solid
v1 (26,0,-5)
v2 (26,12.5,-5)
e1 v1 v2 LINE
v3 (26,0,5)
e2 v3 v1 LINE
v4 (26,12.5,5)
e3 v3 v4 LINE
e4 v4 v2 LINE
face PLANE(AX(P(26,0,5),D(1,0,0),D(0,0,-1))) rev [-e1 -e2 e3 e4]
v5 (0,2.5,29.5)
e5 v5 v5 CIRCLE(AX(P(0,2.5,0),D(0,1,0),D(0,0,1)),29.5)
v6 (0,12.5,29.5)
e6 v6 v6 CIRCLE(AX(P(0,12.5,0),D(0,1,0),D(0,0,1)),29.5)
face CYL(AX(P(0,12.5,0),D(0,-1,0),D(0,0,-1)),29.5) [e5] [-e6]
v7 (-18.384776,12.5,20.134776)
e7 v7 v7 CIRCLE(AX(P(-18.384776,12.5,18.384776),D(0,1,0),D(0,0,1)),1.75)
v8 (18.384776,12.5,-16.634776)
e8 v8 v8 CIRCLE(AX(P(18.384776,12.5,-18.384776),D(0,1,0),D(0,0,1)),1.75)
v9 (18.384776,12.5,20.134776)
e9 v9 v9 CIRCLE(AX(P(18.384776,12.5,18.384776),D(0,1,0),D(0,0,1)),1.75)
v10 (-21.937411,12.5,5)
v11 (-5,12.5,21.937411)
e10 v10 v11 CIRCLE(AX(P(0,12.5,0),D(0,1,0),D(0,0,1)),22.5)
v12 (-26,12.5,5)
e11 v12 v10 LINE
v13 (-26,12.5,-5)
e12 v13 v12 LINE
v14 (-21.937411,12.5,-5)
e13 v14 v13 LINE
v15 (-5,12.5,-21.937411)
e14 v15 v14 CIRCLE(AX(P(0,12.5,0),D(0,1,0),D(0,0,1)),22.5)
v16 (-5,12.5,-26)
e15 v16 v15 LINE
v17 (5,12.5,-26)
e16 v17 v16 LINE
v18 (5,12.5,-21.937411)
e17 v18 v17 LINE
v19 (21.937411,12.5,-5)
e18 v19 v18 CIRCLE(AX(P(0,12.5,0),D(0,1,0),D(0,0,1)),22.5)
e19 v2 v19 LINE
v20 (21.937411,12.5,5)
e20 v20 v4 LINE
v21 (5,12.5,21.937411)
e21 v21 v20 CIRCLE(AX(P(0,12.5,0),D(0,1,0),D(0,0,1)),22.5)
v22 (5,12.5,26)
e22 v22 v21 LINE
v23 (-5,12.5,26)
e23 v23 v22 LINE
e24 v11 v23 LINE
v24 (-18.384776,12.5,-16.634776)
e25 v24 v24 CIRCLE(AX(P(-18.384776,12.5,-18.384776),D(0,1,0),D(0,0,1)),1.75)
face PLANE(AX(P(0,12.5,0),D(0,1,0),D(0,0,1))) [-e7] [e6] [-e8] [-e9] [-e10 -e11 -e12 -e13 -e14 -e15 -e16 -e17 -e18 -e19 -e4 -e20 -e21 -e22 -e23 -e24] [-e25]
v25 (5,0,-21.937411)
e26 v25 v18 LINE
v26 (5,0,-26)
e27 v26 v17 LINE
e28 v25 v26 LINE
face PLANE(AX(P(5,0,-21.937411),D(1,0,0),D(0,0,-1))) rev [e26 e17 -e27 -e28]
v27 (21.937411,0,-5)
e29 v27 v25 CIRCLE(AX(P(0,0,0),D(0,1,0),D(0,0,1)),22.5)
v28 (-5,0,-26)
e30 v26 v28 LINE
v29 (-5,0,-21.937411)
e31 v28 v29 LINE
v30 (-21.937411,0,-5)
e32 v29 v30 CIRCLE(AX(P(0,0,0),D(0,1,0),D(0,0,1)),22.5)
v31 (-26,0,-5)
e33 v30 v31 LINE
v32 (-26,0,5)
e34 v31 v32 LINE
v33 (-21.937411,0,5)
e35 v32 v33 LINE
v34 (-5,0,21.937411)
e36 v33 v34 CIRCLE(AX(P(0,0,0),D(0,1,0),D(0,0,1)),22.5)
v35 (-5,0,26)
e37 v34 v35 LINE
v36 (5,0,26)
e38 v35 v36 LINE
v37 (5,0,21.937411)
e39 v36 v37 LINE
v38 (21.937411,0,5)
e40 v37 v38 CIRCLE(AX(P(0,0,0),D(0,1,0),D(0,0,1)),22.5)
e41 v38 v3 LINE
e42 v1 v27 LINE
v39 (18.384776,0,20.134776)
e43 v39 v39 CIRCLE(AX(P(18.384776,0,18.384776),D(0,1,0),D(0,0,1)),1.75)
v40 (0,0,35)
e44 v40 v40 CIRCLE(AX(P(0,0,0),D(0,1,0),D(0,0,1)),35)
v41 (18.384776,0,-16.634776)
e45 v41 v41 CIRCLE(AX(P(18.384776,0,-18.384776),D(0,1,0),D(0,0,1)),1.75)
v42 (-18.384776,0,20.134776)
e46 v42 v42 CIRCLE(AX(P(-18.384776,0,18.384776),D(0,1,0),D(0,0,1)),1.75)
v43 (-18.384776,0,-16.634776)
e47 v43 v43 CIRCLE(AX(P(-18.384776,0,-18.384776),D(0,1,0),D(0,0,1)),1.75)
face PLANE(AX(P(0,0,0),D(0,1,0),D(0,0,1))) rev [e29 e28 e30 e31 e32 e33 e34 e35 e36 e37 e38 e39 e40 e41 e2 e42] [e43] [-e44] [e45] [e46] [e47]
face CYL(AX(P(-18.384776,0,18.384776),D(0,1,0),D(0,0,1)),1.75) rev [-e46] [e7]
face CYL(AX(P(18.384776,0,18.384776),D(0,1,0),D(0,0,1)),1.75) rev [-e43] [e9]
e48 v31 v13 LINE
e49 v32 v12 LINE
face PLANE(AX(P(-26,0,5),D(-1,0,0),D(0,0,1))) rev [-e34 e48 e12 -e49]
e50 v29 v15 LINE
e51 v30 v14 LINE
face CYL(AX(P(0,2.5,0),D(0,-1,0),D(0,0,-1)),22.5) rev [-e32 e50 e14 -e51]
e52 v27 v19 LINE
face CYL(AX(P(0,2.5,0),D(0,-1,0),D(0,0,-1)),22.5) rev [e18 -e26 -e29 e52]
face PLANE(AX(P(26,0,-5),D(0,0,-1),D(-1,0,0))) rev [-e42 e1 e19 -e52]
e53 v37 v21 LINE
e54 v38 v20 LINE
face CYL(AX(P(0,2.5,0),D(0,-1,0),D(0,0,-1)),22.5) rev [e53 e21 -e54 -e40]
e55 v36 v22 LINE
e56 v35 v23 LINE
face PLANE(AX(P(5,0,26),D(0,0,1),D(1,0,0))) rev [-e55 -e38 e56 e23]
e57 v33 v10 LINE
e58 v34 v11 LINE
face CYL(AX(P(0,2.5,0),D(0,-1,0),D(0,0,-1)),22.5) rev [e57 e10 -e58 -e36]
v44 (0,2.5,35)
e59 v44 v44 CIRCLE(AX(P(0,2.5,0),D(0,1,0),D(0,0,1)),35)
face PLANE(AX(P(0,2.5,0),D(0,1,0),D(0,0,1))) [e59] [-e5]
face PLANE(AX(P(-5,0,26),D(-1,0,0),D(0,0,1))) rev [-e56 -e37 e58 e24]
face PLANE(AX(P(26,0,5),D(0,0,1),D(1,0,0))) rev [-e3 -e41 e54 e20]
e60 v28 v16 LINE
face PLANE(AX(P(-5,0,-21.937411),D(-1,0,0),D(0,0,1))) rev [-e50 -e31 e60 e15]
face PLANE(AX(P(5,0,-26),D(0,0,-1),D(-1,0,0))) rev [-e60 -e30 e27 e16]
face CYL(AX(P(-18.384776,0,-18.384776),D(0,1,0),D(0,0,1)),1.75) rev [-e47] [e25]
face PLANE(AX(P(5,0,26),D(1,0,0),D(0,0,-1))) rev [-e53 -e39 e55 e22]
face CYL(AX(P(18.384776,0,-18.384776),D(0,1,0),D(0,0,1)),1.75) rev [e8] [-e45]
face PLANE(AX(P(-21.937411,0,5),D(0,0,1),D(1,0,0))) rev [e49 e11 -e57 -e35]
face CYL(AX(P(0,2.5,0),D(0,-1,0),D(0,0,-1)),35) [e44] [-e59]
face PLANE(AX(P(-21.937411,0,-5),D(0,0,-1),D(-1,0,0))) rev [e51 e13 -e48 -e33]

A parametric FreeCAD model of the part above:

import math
import FreeCAD as App
import Part
import Sketcher
from FreeCAD import Vector
Q = App.Units.Quantity

doc = App.newDocument("Part")
body = doc.addObject("PartDesign::Body", "Body")

# Sketch on XZ plane
sketch1 = body.newObject("Sketcher::SketchObject", "Sketch")
sketch1.AttachmentSupport = (doc.getObject("XZ_Plane"), [""])
sketch1.MapMode = "FlatFace"
sketch1.addGeometry(Part.Circle(Vector(0, 0, 0), Vector(0, 0, 1), 35), False)
sketch1.addGeometry(Part.Circle(Vector(0, 0, 0), Vector(0, 0, 1), 22), False)
sketch1.addConstraint(Sketcher.Constraint("Coincident", 0, 3, -1, 1))
sketch1.addConstraint(Sketcher.Constraint("Coincident", 1, 3, -1, 1))
sketch1.addConstraint(Sketcher.Constraint("Diameter", 0, Q("70 mm")))
sketch1.addConstraint(Sketcher.Constraint("Diameter", 1, Q("45 mm")))
pad1 = body.newObject("PartDesign::Pad", "Pad")
pad1.Profile = sketch1
pad1.Length = 2.5
pad1.Reversed = True

# Sketch on XZ plane
sketch2 = body.newObject("Sketcher::SketchObject", "Sketch001")
sketch2.AttachmentSupport = (doc.getObject("XZ_Plane"), [""])
sketch2.MapMode = "FlatFace"
sketch2.AttachmentOffset = App.Placement(Vector(0, 0, -2.5), App.Rotation())
sketch2.addGeometry(Part.Circle(Vector(0, 0, 0), Vector(0, 0, 1), 30), False)
sketch2.addGeometry(Part.Circle(Vector(0, 0, 0), Vector(0, 0, 1), 22), False)
sketch2.addConstraint(Sketcher.Constraint("Coincident", 0, 3, -1, 1))
sketch2.addConstraint(Sketcher.Constraint("Coincident", 1, 3, -1, 1))
sketch2.addConstraint(Sketcher.Constraint("Diameter", 0, Q("59 mm")))
sketch2.addConstraint(Sketcher.Constraint("Diameter", 1, Q("45 mm")))
pad2 = body.newObject("PartDesign::Pad", "Pad001")
pad2.Profile = sketch2
pad2.Length = 10
pad2.Reversed = True

# Sketch on XZ plane
sketch3 = body.newObject("Sketcher::SketchObject", "Sketch002")
sketch3.AttachmentSupport = (doc.getObject("XZ_Plane"), [""])
sketch3.MapMode = "FlatFace"
sketch3.AttachmentOffset = App.Placement(Vector(0, 0, -12.5), App.Rotation())
sketch3.addGeometry(Part.LineSegment(Vector(-5, -26, 0), Vector(-5, -21.9, 0)), False)
sketch3.addGeometry(Part.ArcOfCircle(Part.Circle(Vector(0, 0, 0), Vector(0, 0, 1), 22.5), math.radians(-167), math.radians(-103)), False)
sketch3.addGeometry(Part.LineSegment(Vector(-21.9, -5, 0), Vector(-26, -5, 0)), False)
sketch3.addGeometry(Part.LineSegment(Vector(-26, -5, 0), Vector(-26, 5, 0)), False)
sketch3.addGeometry(Part.LineSegment(Vector(-26, 5, 0), Vector(-21.9, 5, 0)), False)
sketch3.addGeometry(Part.ArcOfCircle(Part.Circle(Vector(0, 0, 0), Vector(0, 0, 1), 22.5), math.radians(103), math.radians(167)), False)
sketch3.addGeometry(Part.LineSegment(Vector(-5, 21.9, 0), Vector(-5, 26, 0)), False)
sketch3.addGeometry(Part.LineSegment(Vector(-5, 26, 0), Vector(5, 26, 0)), False)
sketch3.addGeometry(Part.LineSegment(Vector(5, 26, 0), Vector(5, 21.9, 0)), False)
sketch3.addGeometry(Part.ArcOfCircle(Part.Circle(Vector(0, 0, 0), Vector(0, 0, 1), 22.5), math.radians(13), math.radians(77)), False)
sketch3.addGeometry(Part.LineSegment(Vector(21.9, 5, 0), Vector(26, 5, 0)), False)
sketch3.addGeometry(Part.LineSegment(Vector(26, 5, 0), Vector(26, -5, 0)), False)
sketch3.addGeometry(Part.LineSegment(Vector(26, -5, 0), Vector(21.9, -5, 0)), False)
sketch3.addGeometry(Part.ArcOfCircle(Part.Circle(Vector(0, 0, 0), Vector(0, 0, 1), 22.5), math.radians(-77), math.radians(-13)), False)
sketch3.addGeometry(Part.LineSegment(Vector(5, -21.9, 0), Vector(5, -26, 0)), False)
sketch3.addGeometry(Part.LineSegment(Vector(5, -26, 0), Vector(-5, -26, 0)), False)
sketch3.addConstraint(Sketcher.Constraint("Coincident", 0, 2, 1, 2))
sketch3.addConstraint(Sketcher.Constraint("Coincident", 1, 1, 2, 1))
sketch3.addConstraint(Sketcher.Constraint("Coincident", 2, 2, 3, 1))
sketch3.addConstraint(Sketcher.Constraint("Coincident", 3, 2, 4, 1))
sketch3.addConstraint(Sketcher.Constraint("Coincident", 4, 2, 5, 2))
sketch3.addConstraint(Sketcher.Constraint("Coincident", 5, 1, 6, 1))
sketch3.addConstraint(Sketcher.Constraint("Coincident", 6, 2, 7, 1))
sketch3.addConstraint(Sketcher.Constraint("Coincident", 7, 2, 8, 1))
sketch3.addConstraint(Sketcher.Constraint("Coincident", 8, 2, 9, 2))
sketch3.addConstraint(Sketcher.Constraint("Coincident", 9, 1, 10, 1))
sketch3.addConstraint(Sketcher.Constraint("Coincident", 10, 2, 11, 1))
sketch3.addConstraint(Sketcher.Constraint("Coincident", 11, 2, 12, 1))
sketch3.addConstraint(Sketcher.Constraint("Coincident", 12, 2, 13, 2))
sketch3.addConstraint(Sketcher.Constraint("Coincident", 13, 1, 14, 1))
sketch3.addConstraint(Sketcher.Constraint("Coincident", 14, 2, 15, 1))
sketch3.addConstraint(Sketcher.Constraint("Coincident", 15, 2, 0, 1))
sketch3.addConstraint(Sketcher.Constraint("Vertical", 0))
sketch3.addConstraint(Sketcher.Constraint("Horizontal", 2))
sketch3.addConstraint(Sketcher.Constraint("Vertical", 3))
sketch3.addConstraint(Sketcher.Constraint("Horizontal", 4))
sketch3.addConstraint(Sketcher.Constraint("Vertical", 6))
sketch3.addConstraint(Sketcher.Constraint("Horizontal", 7))
sketch3.addConstraint(Sketcher.Constraint("Vertical", 8))
sketch3.addConstraint(Sketcher.Constraint("Horizontal", 10))
sketch3.addConstraint(Sketcher.Constraint("Vertical", 11))
sketch3.addConstraint(Sketcher.Constraint("Horizontal", 12))
sketch3.addConstraint(Sketcher.Constraint("Vertical", 14))
sketch3.addConstraint(Sketcher.Constraint("Horizontal", 15))
sketch3.addConstraint(Sketcher.Constraint("Coincident", 1, 3, -1, 1))
sketch3.addConstraint(Sketcher.Constraint("Coincident", 5, 3, -1, 1))
sketch3.addConstraint(Sketcher.Constraint("Coincident", 9, 3, -1, 1))
sketch3.addConstraint(Sketcher.Constraint("Coincident", 13, 3, -1, 1))
sketch3.addConstraint(Sketcher.Constraint("Equal", 1, 5))
sketch3.addConstraint(Sketcher.Constraint("Equal", 5, 9))
sketch3.addConstraint(Sketcher.Constraint("Equal", 9, 13))
sketch3.addConstraint(Sketcher.Constraint("Symmetric", 2, 2, 10, 2, -1, 1))
sketch3.addConstraint(Sketcher.Constraint("Symmetric", 6, 2, 14, 2, -1, 1))
sketch3.addConstraint(Sketcher.Constraint("Horizontal", 5, 1, 8, 2))
sketch3.addConstraint(Sketcher.Constraint("Horizontal", 4, 2, 9, 1))
sketch3.addConstraint(Sketcher.Constraint("Horizontal", 2, 2, 11, 2))
sketch3.addConstraint(Sketcher.Constraint("Horizontal", 0, 2, 13, 1))
sketch3.addConstraint(Sketcher.Constraint("Equal", 12, 0))
sketch3.addConstraint(Sketcher.Constraint("Equal", 15, 3))
sketch3.addConstraint(Sketcher.Constraint("Radius", 1, Q("22.5 mm")))
sketch3.addConstraint(Sketcher.Constraint("DistanceX", 7, 1, 7, 2, Q("10 mm")))
sketch3.addConstraint(Sketcher.Constraint("DistanceX", 2, 2, -1, 1, Q("26 mm")))
pocket1 = body.newObject("PartDesign::Pocket", "Pocket")
pocket1.Profile = sketch3
pocket1.Type = "ThroughAll"
pocket1.Reversed = True

# Sketch on XZ plane
sketch4 = body.newObject("Sketcher::SketchObject", "Sketch003")
sketch4.AttachmentSupport = (doc.getObject("XZ_Plane"), [""])
sketch4.MapMode = "FlatFace"
sketch4.AttachmentOffset = App.Placement(Vector(0, 0, -12.5), App.Rotation())
sketch4.addGeometry(Part.Circle(Vector(-18.4, 18.4, 0), Vector(0, 0, 1), 1.8), False)
sketch4.addGeometry(Part.Circle(Vector(-18.4, -18.4, 0), Vector(0, 0, 1), 1.8), False)
sketch4.addGeometry(Part.Circle(Vector(18.4, -18.4, 0), Vector(0, 0, 1), 1.8), False)
sketch4.addGeometry(Part.Circle(Vector(18.4, 18.4, 0), Vector(0, 0, 1), 1.8), False)
sketch4.addConstraint(Sketcher.Constraint("Equal", 0, 1))
sketch4.addConstraint(Sketcher.Constraint("Equal", 1, 2))
sketch4.addConstraint(Sketcher.Constraint("Equal", 2, 3))
sketch4.addConstraint(Sketcher.Constraint("Symmetric", 0, 3, 2, 3, -1, 1))
sketch4.addConstraint(Sketcher.Constraint("Symmetric", 1, 3, 3, 3, -1, 1))
sketch4.addConstraint(Sketcher.Constraint("Symmetric", 1, 3, 2, 3, -2))
sketch4.addConstraint(Sketcher.Constraint("Diameter", 0, Q("3.5 mm")))
sketch4.addConstraint(Sketcher.Constraint("DistanceX", 0, 3, -1, 1, Q("18.384776 mm")))
sketch4.addConstraint(Sketcher.Constraint("DistanceY", -1, 1, 0, 3, Q("18.384776 mm")))
pocket2 = body.newObject("PartDesign::Pocket", "Pocket001")
pocket2.Profile = sketch4
pocket2.Type = "ThroughAll"
pocket2.Reversed = True

doc.recompute()
